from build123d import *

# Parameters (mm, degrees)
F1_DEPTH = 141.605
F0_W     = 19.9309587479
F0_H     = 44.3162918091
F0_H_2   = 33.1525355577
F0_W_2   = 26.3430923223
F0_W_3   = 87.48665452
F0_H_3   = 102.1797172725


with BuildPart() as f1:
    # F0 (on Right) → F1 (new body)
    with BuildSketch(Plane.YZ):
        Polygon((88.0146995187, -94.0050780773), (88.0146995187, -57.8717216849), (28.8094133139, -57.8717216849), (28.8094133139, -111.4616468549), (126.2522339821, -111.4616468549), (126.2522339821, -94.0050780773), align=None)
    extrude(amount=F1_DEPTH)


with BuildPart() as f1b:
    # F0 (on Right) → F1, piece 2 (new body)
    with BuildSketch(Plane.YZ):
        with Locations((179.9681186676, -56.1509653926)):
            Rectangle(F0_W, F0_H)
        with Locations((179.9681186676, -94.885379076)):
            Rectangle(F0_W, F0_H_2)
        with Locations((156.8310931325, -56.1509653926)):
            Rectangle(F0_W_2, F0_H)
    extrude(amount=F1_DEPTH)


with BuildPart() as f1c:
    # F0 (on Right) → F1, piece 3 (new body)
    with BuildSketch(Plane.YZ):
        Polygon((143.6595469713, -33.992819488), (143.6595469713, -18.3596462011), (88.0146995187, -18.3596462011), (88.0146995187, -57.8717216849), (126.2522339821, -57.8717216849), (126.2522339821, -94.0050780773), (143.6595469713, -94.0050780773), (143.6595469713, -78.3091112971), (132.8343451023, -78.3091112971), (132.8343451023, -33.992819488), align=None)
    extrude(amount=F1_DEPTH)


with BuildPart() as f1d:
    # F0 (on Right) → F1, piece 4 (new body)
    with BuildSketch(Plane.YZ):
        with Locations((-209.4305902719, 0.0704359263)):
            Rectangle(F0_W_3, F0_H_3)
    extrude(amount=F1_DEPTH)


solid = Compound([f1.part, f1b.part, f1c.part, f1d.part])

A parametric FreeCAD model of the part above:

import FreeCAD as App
import Part
import Sketcher

V = App.Vector
Q = App.Units.Quantity

doc = App.newDocument("Part")
body = doc.addObject("PartDesign::Body", "Body")

# Sketch on YZ plane
sketch1 = body.newObject("Sketcher::SketchObject", "Sketch")
sketch1.AttachmentSupport = (doc.getObject("YZ_Plane"), [""])
sketch1.MapMode = "FlatFace"
sketch1.addGeometry(Part.LineSegment(V(88, -94, 0), V(88, -58, 0)), False)
sketch1.addGeometry(Part.LineSegment(V(88, -58, 0), V(29, -58, 0)), False)
sketch1.addGeometry(Part.LineSegment(V(29, -58, 0), V(29, -111, 0)), False)
sketch1.addGeometry(Part.LineSegment(V(29, -111, 0), V(126, -111, 0)), False)
sketch1.addGeometry(Part.LineSegment(V(126, -111, 0), V(126, -94, 0)), False)
sketch1.addGeometry(Part.LineSegment(V(126, -94, 0), V(88, -94, 0)), False)
sketch1.addConstraint(Sketcher.Constraint("Coincident", 0, 2, 1, 1))
sketch1.addConstraint(Sketcher.Constraint("Coincident", 1, 2, 2, 1))
sketch1.addConstraint(Sketcher.Constraint("Coincident", 2, 2, 3, 1))
sketch1.addConstraint(Sketcher.Constraint("Coincident", 3, 2, 4, 1))
sketch1.addConstraint(Sketcher.Constraint("Coincident", 4, 2, 5, 1))
sketch1.addConstraint(Sketcher.Constraint("Coincident", 5, 2, 0, 1))
sketch1.addConstraint(Sketcher.Constraint("Vertical", 0))
sketch1.addConstraint(Sketcher.Constraint("Horizontal", 1))
sketch1.addConstraint(Sketcher.Constraint("Vertical", 2))
sketch1.addConstraint(Sketcher.Constraint("Horizontal", 3))
sketch1.addConstraint(Sketcher.Constraint("Vertical", 4))
sketch1.addConstraint(Sketcher.Constraint("Horizontal", 5))
sketch1.addConstraint(Sketcher.Constraint("DistanceX", 3, 1, 3, 2, 97.442821))
sketch1.addConstraint(Sketcher.Constraint("DistanceY", 4, 1, 4, 2, 17.456569))
sketch1.addConstraint(Sketcher.Constraint("DistanceX", -1, 1, 0, 2, 88.0147))
sketch1.addConstraint(Sketcher.Constraint("DistanceX", 1, 2, 1, 1, 59.205286))
sketch1.addConstraint(Sketcher.Constraint("DistanceY", 0, 1, 0, 2, 36.133356))
sketch1.addConstraint(Sketcher.Constraint("DistanceY", 0, 2, -1, 1, 57.871722))
pad1 = body.newObject("PartDesign::Pad", "Pad")
pad1.Profile = sketch1
pad1.Length = Q("5.575 in")
body2 = doc.addObject("PartDesign::Body", "Body001")

# Sketch on YZ plane
sketch2 = body2.newObject("Sketcher::SketchObject", "Sketch001")
sketch2.AttachmentSupport = (doc.getObject("YZ_Plane001"), [""])
sketch2.MapMode = "FlatFace"
sketch2.addGeometry(Part.LineSegment(V(170, -78, 0), V(170, -111, 0)), False)
sketch2.addGeometry(Part.LineSegment(V(170, -111, 0), V(190, -111, 0)), False)
sketch2.addGeometry(Part.LineSegment(V(190, -111, 0), V(190, -34, 0)), False)
sketch2.addGeometry(Part.LineSegment(V(190, -34, 0), V(144, -34, 0)), False)
sketch2.addGeometry(Part.LineSegment(V(144, -34, 0), V(144, -78, 0)), False)
sketch2.addGeometry(Part.LineSegment(V(144, -78, 0), V(170, -78, 0)), False)
sketch2.addConstraint(Sketcher.Constraint("Coincident", 0, 2, 1, 1))
sketch2.addConstraint(Sketcher.Constraint("Coincident", 1, 2, 2, 1))
sketch2.addConstraint(Sketcher.Constraint("Coincident", 2, 2, 3, 1))
sketch2.addConstraint(Sketcher.Constraint("Coincident", 3, 2, 4, 1))
sketch2.addConstraint(Sketcher.Constraint("Coincident", 4, 2, 5, 1))
sketch2.addConstraint(Sketcher.Constraint("Coincident", 5, 2, 0, 1))
sketch2.addConstraint(Sketcher.Constraint("Vertical", 0))
sketch2.addConstraint(Sketcher.Constraint("Horizontal", 1))
sketch2.addConstraint(Sketcher.Constraint("Vertical", 2))
sketch2.addConstraint(Sketcher.Constraint("Horizontal", 3))
sketch2.addConstraint(Sketcher.Constraint("Vertical", 4))
sketch2.addConstraint(Sketcher.Constraint("Horizontal", 5))
sketch2.addConstraint(Sketcher.Constraint("DistanceY", 2, 2, -1, 1, Q("1.3383 in")))
sketch2.addConstraint(Sketcher.Constraint("DistanceX", 1, 1, 1, 2, 19.930959))
sketch2.addConstraint(Sketcher.Constraint("DistanceX", 3, 2, 3, 1, 46.274051))
sketch2.addConstraint(Sketcher.Constraint("DistanceY", 4, 2, 4, 1, 44.316292))
sketch2.addConstraint(Sketcher.Constraint("DistanceX", -1, 1, 1, 2, 189.933598))
sketch2.addConstraint(Sketcher.Constraint("DistanceY", 0, 2, 0, 1, 33.152536))
pad2 = body2.newObject("PartDesign::Pad", "Pad001")
pad2.Profile = sketch2
pad2.Length = Q("5.575 in")
body3 = doc.addObject("PartDesign::Body", "Body002")

# Sketch on YZ plane
sketch3 = body3.newObject("Sketcher::SketchObject", "Sketch002")
sketch3.AttachmentSupport = (doc.getObject("YZ_Plane002"), [""])
sketch3.MapMode = "FlatFace"
sketch3.addGeometry(Part.LineSegment(V(144, -34, 0), V(144, -18, 0)), False)
sketch3.addGeometry(Part.LineSegment(V(144, -18, 0), V(88, -18, 0)), False)
sketch3.addGeometry(Part.LineSegment(V(88, -18, 0), V(88, -58, 0)), False)
sketch3.addGeometry(Part.LineSegment(V(88, -58, 0), V(126, -58, 0)), False)
sketch3.addGeometry(Part.LineSegment(V(126, -58, 0), V(126, -94, 0)), False)
sketch3.addGeometry(Part.LineSegment(V(126, -94, 0), V(144, -94, 0)), False)
sketch3.addGeometry(Part.LineSegment(V(144, -94, 0), V(144, -78, 0)), False)
sketch3.addGeometry(Part.LineSegment(V(144, -78, 0), V(133, -78, 0)), False)
sketch3.addGeometry(Part.LineSegment(V(133, -78, 0), V(133, -34, 0)), False)
sketch3.addGeometry(Part.LineSegment(V(133, -34, 0), V(144, -34, 0)), False)
sketch3.addConstraint(Sketcher.Constraint("Coincident", 0, 2, 1, 1))
sketch3.addConstraint(Sketcher.Constraint("Coincident", 1, 2, 2, 1))
sketch3.addConstraint(Sketcher.Constraint("Coincident", 2, 2, 3, 1))
sketch3.addConstraint(Sketcher.Constraint("Coincident", 3, 2, 4, 1))
sketch3.addConstraint(Sketcher.Constraint("Coincident", 4, 2, 5, 1))
sketch3.addConstraint(Sketcher.Constraint("Coincident", 5, 2, 6, 1))
sketch3.addConstraint(Sketcher.Constraint("Coincident", 6, 2, 7, 1))
sketch3.addConstraint(Sketcher.Constraint("Coincident", 7, 2, 8, 1))
sketch3.addConstraint(Sketcher.Constraint("Coincident", 8, 2, 9, 1))
sketch3.addConstraint(Sketcher.Constraint("Coincident", 9, 2, 0, 1))
sketch3.addConstraint(Sketcher.Constraint("Vertical", 0))
sketch3.addConstraint(Sketcher.Constraint("Horizontal", 1))
sketch3.addConstraint(Sketcher.Constraint("Vertical", 2))
sketch3.addConstraint(Sketcher.Constraint("Horizontal", 3))
sketch3.addConstraint(Sketcher.Constraint("Vertical", 4))
sketch3.addConstraint(Sketcher.Constraint("Horizontal", 5))
sketch3.addConstraint(Sketcher.Constraint("Vertical", 6))
sketch3.addConstraint(Sketcher.Constraint("Horizontal", 7))
sketch3.addConstraint(Sketcher.Constraint("Vertical", 8))
sketch3.addConstraint(Sketcher.Constraint("Horizontal", 9))
sketch3.addConstraint(Sketcher.Constraint("Vertical", 0, 2, 5, 2))
sketch3.addConstraint(Sketcher.Constraint("DistanceX", 7, 2, 7, 1, 10.825202))
sketch3.addConstraint(Sketcher.Constraint("DistanceY", 8, 2, -1, 1, Q("1.3383 in")))
sketch3.addConstraint(Sketcher.Constraint("DistanceY", 8, 1, 8, 2, 44.316292))
sketch3.addConstraint(Sketcher.Constraint("DistanceX", -1, 1, 1, 2, 88.0147))
sketch3.addConstraint(Sketcher.Constraint("DistanceX", 1, 2, 1, 1, 55.644847))
sketch3.addConstraint(Sketcher.Constraint("DistanceX", 3, 1, 3, 2, 38.237534))
sketch3.addConstraint(Sketcher.Constraint("DistanceY", 0, 1, 0, 2, 15.633173))
sketch3.addConstraint(Sketcher.Constraint("DistanceY", 2, 2, 2, 1, 39.512075))
sketch3.addConstraint(Sketcher.Constraint("DistanceY", 4, 2, 4, 1, 36.133356))
pad3 = body3.newObject("PartDesign::Pad", "Pad002")
pad3.Profile = sketch3
pad3.Length = Q("5.575 in")
body4 = doc.addObject("PartDesign::Body", "Body003")

# Sketch on YZ plane
sketch4 = body4.newObject("Sketcher::SketchObject", "Sketch003")
sketch4.AttachmentSupport = (doc.getObject("YZ_Plane003"), [""])
sketch4.MapMode = "FlatFace"
sketch4.addGeometry(Part.LineSegment(V(-253, 51, 0), V(-253, -51, 0)), False)
sketch4.addGeometry(Part.LineSegment(V(-253, -51, 0), V(-166, -51, 0)), False)
sketch4.addGeometry(Part.LineSegment(V(-166, -51, 0), V(-166, 51, 0)), False)
sketch4.addGeometry(Part.LineSegment(V(-166, 51, 0), V(-253, 51, 0)), False)
sketch4.addConstraint(Sketcher.Constraint("Coincident", 0, 2, 1, 1))
sketch4.addConstraint(Sketcher.Constraint("Coincident", 1, 2, 2, 1))
sketch4.addConstraint(Sketcher.Constraint("Coincident", 2, 2, 3, 1))
sketch4.addConstraint(Sketcher.Constraint("Coincident", 3, 2, 0, 1))
sketch4.addConstraint(Sketcher.Constraint("Vertical", 0))
sketch4.addConstraint(Sketcher.Constraint("Horizontal", 1))
sketch4.addConstraint(Sketcher.Constraint("Vertical", 2))
sketch4.addConstraint(Sketcher.Constraint("Horizontal", 3))
sketch4.addConstraint(Sketcher.Constraint("DistanceX", 1, 1, 1, 2, 87.486655))
sketch4.addConstraint(Sketcher.Constraint("DistanceY", 0, 2, 0, 1, 102.179717))
sketch4.addConstraint(Sketcher.Constraint("DistanceX", 0, 2, -1, 1, 253.173918))
sketch4.addConstraint(Sketcher.Constraint("DistanceY", 0, 2, -1, 1, 51.019423))
pad4 = body4.newObject("PartDesign::Pad", "Pad003")
pad4.Profile = sketch4
pad4.Length = Q("5.575 in")

doc.recompute()
